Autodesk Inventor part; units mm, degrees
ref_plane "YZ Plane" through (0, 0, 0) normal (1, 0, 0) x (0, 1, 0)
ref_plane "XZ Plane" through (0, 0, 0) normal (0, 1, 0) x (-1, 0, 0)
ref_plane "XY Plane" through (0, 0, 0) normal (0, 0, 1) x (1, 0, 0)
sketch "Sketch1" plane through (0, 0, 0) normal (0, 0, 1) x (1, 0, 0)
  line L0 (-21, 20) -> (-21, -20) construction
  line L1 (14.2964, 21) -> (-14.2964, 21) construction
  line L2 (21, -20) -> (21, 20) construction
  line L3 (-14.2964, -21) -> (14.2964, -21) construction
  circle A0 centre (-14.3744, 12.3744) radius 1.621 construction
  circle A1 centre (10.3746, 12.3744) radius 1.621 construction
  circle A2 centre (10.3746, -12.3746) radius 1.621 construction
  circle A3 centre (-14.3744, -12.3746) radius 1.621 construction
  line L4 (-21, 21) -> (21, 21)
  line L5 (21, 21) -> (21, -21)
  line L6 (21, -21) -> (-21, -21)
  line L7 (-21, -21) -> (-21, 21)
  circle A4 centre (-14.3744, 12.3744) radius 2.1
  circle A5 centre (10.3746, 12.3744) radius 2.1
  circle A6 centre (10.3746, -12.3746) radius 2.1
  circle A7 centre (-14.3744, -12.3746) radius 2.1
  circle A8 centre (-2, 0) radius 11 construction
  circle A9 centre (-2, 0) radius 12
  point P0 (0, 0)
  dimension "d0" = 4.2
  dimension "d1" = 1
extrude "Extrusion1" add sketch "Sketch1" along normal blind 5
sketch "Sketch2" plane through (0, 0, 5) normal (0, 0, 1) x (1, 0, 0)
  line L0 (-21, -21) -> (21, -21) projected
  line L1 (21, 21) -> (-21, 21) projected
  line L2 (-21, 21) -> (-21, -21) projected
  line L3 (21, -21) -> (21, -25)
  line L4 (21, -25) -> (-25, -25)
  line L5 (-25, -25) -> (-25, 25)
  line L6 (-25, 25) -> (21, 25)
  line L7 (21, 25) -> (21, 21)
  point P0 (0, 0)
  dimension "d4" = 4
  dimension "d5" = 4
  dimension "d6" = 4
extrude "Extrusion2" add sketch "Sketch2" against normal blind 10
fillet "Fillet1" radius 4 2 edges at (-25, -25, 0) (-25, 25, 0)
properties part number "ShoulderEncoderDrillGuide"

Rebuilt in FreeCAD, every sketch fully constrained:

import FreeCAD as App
import Part
import Sketcher

V = App.Vector


def edges_at(feature, points):
    """Names of the edges that pass closest to the given points."""
    edges = feature.Shape.Edges
    near = lambda p: min(range(len(edges)), key=lambda i: edges[i].distToShape(Part.Vertex(*p))[0])
    return sorted({f"Edge{near(p) + 1}" for p in points})

doc = App.newDocument("Part")
params = doc.addObject("Spreadsheet::Sheet", "Params")
for row, (alias, value) in enumerate([
    ("sketch1_diameter", "4.2 mm"),
    ("sketch1_diameter2", "24 mm"),
    ("sketch1_width", "42 mm"),
    ("pad1_length", "5 mm"),
    ("sketch2_height", "4 mm"),
    ("sketch2_width", "42 mm"),
    ("pad2_length", "10 mm"),
    ("fillet_radius", "4 mm"),
], start=1):
    params.set(f"A{row}", alias)
    params.set(f"B{row}", "=" + value)
    params.setAlias(f"B{row}", alias)

body = doc.addObject("PartDesign::Body", "Body")

# Sketch on XY plane
sketch1 = body.newObject("Sketcher::SketchObject", "Sketch")
sketch1.AttachmentSupport = (doc.getObject("XY_Plane"), [""])
sketch1.MapMode = "FlatFace"
sketch1.addGeometry([
    Part.LineSegment(V(21, 21, 0), V(-21, 21, 0)),  # 0
    Part.LineSegment(V(-21, 21, 0), V(-21, -21, 0)),  # 1
    Part.LineSegment(V(-21, -21, 0), V(21, -21, 0)),  # 2
    Part.LineSegment(V(21, -21, 0), V(21, 21, 0)),  # 3
    Part.Circle(V(-14.4, -12.4, 0), V(0, 0, 1), 2.1),  # 4
    Part.Circle(V(10.4, -12.4, 0), V(0, 0, 1), 2.1),  # 5
    Part.Circle(V(-2, 0, 0), V(0, 0, 1), 12),  # 6
    Part.Circle(V(-14.4, 12.4, 0), V(0, 0, 1), 2.1),  # 7
    Part.Circle(V(10.4, 12.4, 0), V(0, 0, 1), 2.1),  # 8
], False)
sketch1.addConstraint([
    Sketcher.Constraint("Coincident", 0, 2, 1, 1),
    Sketcher.Constraint("Coincident", 1, 2, 2, 1),
    Sketcher.Constraint("Coincident", 2, 2, 3, 1),
    Sketcher.Constraint("Coincident", 3, 2, 0, 1),
    Sketcher.Constraint("Horizontal", 0),
    Sketcher.Constraint("Vertical", 1),
    Sketcher.Constraint("Horizontal", 2),
    Sketcher.Constraint("Vertical", 3),
    Sketcher.Constraint("Equal", 4, 5),
    Sketcher.Constraint("Equal", 5, 7),
    Sketcher.Constraint("Equal", 7, 8),
    Sketcher.Constraint("Symmetric", 0, 2, 2, 2, -1, 1),
    Sketcher.Constraint("Symmetric", 4, 3, 7, 3, -1),
    Sketcher.Constraint("Symmetric", 5, 3, 8, 3, -1),
    Sketcher.Constraint("PointOnObject", 6, 3, -1),
    Sketcher.Constraint("Horizontal", 4, 3, 5, 3),
    Sketcher.Constraint("Equal", 2, 1),
    Sketcher.Constraint("Diameter", 4, 4.2),
    Sketcher.Constraint("Diameter", 6, 24.0),
    Sketcher.Constraint("DistanceX", 0, 2, 0, 1, 42.0),
    Sketcher.Constraint("DistanceX", 6, 3, -1, 1, 2.0),
    Sketcher.Constraint("DistanceX", 4, 3, 5, 3, 24.749),
    Sketcher.Constraint("DistanceY", 4, 3, 7, 3, 24.749),
    Sketcher.Constraint("DistanceX", 4, 3, -1, 1, 14.3744),
])
sketch1.setExpression("Constraints[17]", "Params.sketch1_diameter")
sketch1.setExpression("Constraints[18]", "Params.sketch1_diameter2")
sketch1.setExpression("Constraints[19]", "Params.sketch1_width")
pad1 = body.newObject("PartDesign::Pad", "Pad")
pad1.Profile = sketch1
pad1.setExpression("Length", "Params.pad1_length")

# Sketch on XY plane
sketch2 = body.newObject("Sketcher::SketchObject", "Sketch001")
sketch2.AttachmentSupport = (doc.getObject("XY_Plane"), [""])
sketch2.MapMode = "FlatFace"
sketch2.AttachmentOffset = App.Placement(V(0, 0, 5), App.Rotation())
sketch2.addGeometry([
    Part.LineSegment(V(21, -21, 0), V(-21, -21, 0)),  # 0
    Part.LineSegment(V(-21, -21, 0), V(-21, 21, 0)),  # 1
    Part.LineSegment(V(-21, 21, 0), V(21, 21, 0)),  # 2
    Part.LineSegment(V(21, 21, 0), V(21, 25, 0)),  # 3
    Part.LineSegment(V(21, 25, 0), V(-25, 25, 0)),  # 4
    Part.LineSegment(V(-25, 25, 0), V(-25, -25, 0)),  # 5
    Part.LineSegment(V(-25, -25, 0), V(21, -25, 0)),  # 6
    Part.LineSegment(V(21, -25, 0), V(21, -21, 0)),  # 7
], False)
sketch2.addConstraint([
    Sketcher.Constraint("Coincident", 0, 2, 1, 1),
    Sketcher.Constraint("Coincident", 1, 2, 2, 1),
    Sketcher.Constraint("Coincident", 2, 2, 3, 1),
    Sketcher.Constraint("Coincident", 3, 2, 4, 1),
    Sketcher.Constraint("Coincident", 4, 2, 5, 1),
    Sketcher.Constraint("Coincident", 5, 2, 6, 1),
    Sketcher.Constraint("Coincident", 6, 2, 7, 1),
    Sketcher.Constraint("Coincident", 7, 2, 0, 1),
    Sketcher.Constraint("Horizontal", 0),
    Sketcher.Constraint("Vertical", 1),
    Sketcher.Constraint("Horizontal", 2),
    Sketcher.Constraint("Vertical", 3),
    Sketcher.Constraint("Horizontal", 4),
    Sketcher.Constraint("Vertical", 5),
    Sketcher.Constraint("Horizontal", 6),
    Sketcher.Constraint("Vertical", 7),
    Sketcher.Constraint("Symmetric", 0, 2, 2, 2, -1, 1),
    Sketcher.Constraint("Symmetric", 3, 2, 6, 2, -1),
    Sketcher.Constraint("Equal", 2, 1),
    Sketcher.Constraint("DistanceY", 3, 1, 3, 2, 4.0),
    Sketcher.Constraint("DistanceX", 4, 2, 1, 2, 4.0),
    Sketcher.Constraint("DistanceX", 0, 2, 0, 1, 42.0),
])
sketch2.setExpression("Constraints[19]", "Params.sketch2_height")
sketch2.setExpression("Constraints[21]", "Params.sketch2_width")
pad2 = body.newObject("PartDesign::Pad", "Pad001")
pad2.Profile = sketch2
pad2.setExpression("Length", "Params.pad2_length")
pad2.Reversed = True
doc.recompute()

fillet = body.newObject("PartDesign::Fillet", "Fillet")
fillet.Base = (pad2, edges_at(pad2, [(-25, -25, 0), (-25, 25, 0)]))
fillet.setExpression("Radius", "Params.fillet_radius")

doc.recompute()
